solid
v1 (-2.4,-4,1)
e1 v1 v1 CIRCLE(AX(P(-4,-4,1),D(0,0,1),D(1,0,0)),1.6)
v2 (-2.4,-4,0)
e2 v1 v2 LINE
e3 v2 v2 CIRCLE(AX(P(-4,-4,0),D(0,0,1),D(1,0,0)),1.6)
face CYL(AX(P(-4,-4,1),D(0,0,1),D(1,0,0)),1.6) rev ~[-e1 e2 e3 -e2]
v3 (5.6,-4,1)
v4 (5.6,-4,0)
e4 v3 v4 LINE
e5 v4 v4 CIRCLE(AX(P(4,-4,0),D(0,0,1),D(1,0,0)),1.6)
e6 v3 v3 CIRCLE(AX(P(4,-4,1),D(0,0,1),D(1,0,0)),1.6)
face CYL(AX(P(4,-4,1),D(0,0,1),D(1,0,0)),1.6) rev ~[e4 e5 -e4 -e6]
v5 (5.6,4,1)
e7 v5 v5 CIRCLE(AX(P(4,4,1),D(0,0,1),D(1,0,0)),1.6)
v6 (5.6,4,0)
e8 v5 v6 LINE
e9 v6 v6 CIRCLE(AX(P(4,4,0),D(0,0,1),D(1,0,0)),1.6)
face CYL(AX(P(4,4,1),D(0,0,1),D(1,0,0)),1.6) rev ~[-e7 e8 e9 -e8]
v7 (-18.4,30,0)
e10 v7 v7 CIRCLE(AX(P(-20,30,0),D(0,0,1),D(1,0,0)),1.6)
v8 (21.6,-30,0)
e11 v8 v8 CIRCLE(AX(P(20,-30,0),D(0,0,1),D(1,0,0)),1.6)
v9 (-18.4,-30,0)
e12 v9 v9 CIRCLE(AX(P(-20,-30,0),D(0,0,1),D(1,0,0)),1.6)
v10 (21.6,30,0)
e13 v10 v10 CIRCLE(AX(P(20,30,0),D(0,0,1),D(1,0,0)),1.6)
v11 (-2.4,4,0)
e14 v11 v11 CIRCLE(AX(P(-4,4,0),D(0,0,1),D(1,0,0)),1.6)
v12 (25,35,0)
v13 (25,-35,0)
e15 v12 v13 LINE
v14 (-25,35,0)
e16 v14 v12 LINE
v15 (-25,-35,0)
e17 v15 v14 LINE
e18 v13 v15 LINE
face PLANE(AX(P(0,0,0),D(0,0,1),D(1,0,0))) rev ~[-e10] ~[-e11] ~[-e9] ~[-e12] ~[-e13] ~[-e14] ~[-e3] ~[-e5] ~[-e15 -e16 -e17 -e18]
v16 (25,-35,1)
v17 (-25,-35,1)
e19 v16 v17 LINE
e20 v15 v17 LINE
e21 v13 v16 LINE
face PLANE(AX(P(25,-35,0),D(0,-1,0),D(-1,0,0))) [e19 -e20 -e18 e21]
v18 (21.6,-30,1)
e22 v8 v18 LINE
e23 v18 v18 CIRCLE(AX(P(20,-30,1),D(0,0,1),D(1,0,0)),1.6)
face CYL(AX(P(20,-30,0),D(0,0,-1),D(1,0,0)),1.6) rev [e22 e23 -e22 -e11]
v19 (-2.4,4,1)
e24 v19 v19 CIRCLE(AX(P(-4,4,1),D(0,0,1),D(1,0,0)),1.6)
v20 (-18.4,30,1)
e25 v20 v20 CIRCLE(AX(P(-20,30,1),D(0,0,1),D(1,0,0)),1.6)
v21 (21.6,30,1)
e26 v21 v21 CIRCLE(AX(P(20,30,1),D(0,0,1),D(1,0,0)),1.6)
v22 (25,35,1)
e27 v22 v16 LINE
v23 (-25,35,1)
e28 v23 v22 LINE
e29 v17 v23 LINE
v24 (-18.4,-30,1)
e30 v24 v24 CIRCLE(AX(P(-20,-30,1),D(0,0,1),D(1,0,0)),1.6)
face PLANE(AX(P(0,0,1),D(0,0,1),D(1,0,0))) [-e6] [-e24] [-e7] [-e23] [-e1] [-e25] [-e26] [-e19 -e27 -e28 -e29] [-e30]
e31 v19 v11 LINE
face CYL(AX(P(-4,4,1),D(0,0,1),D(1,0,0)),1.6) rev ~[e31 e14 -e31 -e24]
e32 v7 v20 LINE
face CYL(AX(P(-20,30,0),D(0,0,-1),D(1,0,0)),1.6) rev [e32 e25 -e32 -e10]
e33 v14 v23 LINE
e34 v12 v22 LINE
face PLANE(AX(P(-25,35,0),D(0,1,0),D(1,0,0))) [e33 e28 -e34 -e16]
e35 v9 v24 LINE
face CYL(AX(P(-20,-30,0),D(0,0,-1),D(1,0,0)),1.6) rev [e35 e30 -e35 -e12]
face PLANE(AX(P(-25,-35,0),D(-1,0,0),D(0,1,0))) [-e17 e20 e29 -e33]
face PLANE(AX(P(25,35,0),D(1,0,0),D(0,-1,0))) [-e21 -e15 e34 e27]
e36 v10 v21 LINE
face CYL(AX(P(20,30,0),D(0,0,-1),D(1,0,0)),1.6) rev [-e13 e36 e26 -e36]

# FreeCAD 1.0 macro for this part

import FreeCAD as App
import Part
import Sketcher
from FreeCAD import Vector


def add_polygon(sketch, points):
    """Adds a closed chain of lines whose ends are joined by coincident constraints."""
    first, n = sketch.GeometryCount, len(points)
    for a, b in zip(points, points[1:] + points[:1]):
        sketch.addGeometry(Part.LineSegment(App.Vector(*a, 0), App.Vector(*b, 0)), False)
    for i in range(n):
        sketch.addConstraint(Sketcher.Constraint("Coincident", first + i, 2, first + (i + 1) % n, 1))

doc = App.newDocument("Part")
body = doc.addObject("PartDesign::Body", "Body")

# Sketch on XY plane
sketch1 = body.newObject("Sketcher::SketchObject", "Sketch")
sketch1.AttachmentSupport = (doc.getObject("XY_Plane"), [""])
sketch1.MapMode = "FlatFace"
add_polygon(sketch1, [(25, 35), (-25, 35), (-25, -35), (25, -35)])  # lines 0-3
sketch1.addGeometry(Part.Circle(Vector(-20, -30, 0), Vector(0, 0, 1), 1.6), False)  # 4
sketch1.addGeometry(Part.Circle(Vector(20, -30, 0), Vector(0, 0, 1), 1.6), False)  # 5
sketch1.addGeometry(Part.Circle(Vector(-20, 30, 0), Vector(0, 0, 1), 1.6), False)  # 6
sketch1.addGeometry(Part.Circle(Vector(20, 30, 0), Vector(0, 0, 1), 1.6), False)  # 7
sketch1.addConstraint(Sketcher.Constraint("Horizontal", 0))
sketch1.addConstraint(Sketcher.Constraint("Vertical", 1))
sketch1.addConstraint(Sketcher.Constraint("Horizontal", 2))
sketch1.addConstraint(Sketcher.Constraint("Vertical", 3))
sketch1.addConstraint(Sketcher.Constraint("Equal", 4, 5))
sketch1.addConstraint(Sketcher.Constraint("Equal", 5, 6))
sketch1.addConstraint(Sketcher.Constraint("Equal", 6, 7))
sketch1.addConstraint(Sketcher.Constraint("Symmetric", 5, 3, 6, 3, -1, 1))
sketch1.addConstraint(Sketcher.Constraint("Symmetric", 4, 3, 7, 3, -1, 1))
sketch1.addConstraint(Sketcher.Constraint("Symmetric", 0, 2, 2, 2, -1, 1))
sketch1.addConstraint(Sketcher.Constraint("Symmetric", 4, 3, 5, 3, -2))
sketch1.addConstraint(Sketcher.Constraint("Diameter", 4, 3.2))
sketch1.addConstraint(Sketcher.Constraint("DistanceX", 0, 2, 0, 1, 50.0))
sketch1.addConstraint(Sketcher.Constraint("DistanceY", 1, 2, 1, 1, 70.0))
sketch1.addConstraint(Sketcher.Constraint("DistanceX", 0, 2, 6, 3, 5.0))
sketch1.addConstraint(Sketcher.Constraint("DistanceY", 6, 3, 0, 2, 5.0))
pad1 = body.newObject("PartDesign::Pad", "Pad")
pad1.Profile = sketch1
pad1.Length = 1

# Sketch on XY plane
sketch2 = body.newObject("Sketcher::SketchObject", "Sketch001")
sketch2.AttachmentSupport = (doc.getObject("XY_Plane"), [""])
sketch2.MapMode = "FlatFace"
sketch2.AttachmentOffset = App.Placement(Vector(0, 0, 1), App.Rotation())
sketch2.addGeometry(Part.Circle(Vector(-4, 4, 0), Vector(0, 0, 1), 1.6), False)
sketch2.addGeometry(Part.Circle(Vector(4, 4, 0), Vector(0, 0, 1), 1.6), False)
sketch2.addGeometry(Part.Circle(Vector(-4, -4, 0), Vector(0, 0, 1), 1.6), False)
sketch2.addGeometry(Part.Circle(Vector(4, -4, 0), Vector(0, 0, 1), 1.6), False)
sketch2.addConstraint(Sketcher.Constraint("Equal", 0, 1))
sketch2.addConstraint(Sketcher.Constraint("Equal", 1, 2))
sketch2.addConstraint(Sketcher.Constraint("Equal", 2, 3))
sketch2.addConstraint(Sketcher.Constraint("Symmetric", 1, 3, 2, 3, -1, 1))
sketch2.addConstraint(Sketcher.Constraint("Symmetric", 0, 3, 3, 3, -1, 1))
sketch2.addConstraint(Sketcher.Constraint("Symmetric", 0, 3, 1, 3, -2))
sketch2.addConstraint(Sketcher.Constraint("Diameter", 0, 3.2))
sketch2.addConstraint(Sketcher.Constraint("DistanceX", 0, 3, -1, 1, 4.0))
sketch2.addConstraint(Sketcher.Constraint("DistanceY", -1, 1, 0, 3, 4.0))
pocket1 = body.newObject("PartDesign::Pocket", "Pocket")
pocket1.Profile = sketch2
pocket1.Length = 10

doc.recompute()
